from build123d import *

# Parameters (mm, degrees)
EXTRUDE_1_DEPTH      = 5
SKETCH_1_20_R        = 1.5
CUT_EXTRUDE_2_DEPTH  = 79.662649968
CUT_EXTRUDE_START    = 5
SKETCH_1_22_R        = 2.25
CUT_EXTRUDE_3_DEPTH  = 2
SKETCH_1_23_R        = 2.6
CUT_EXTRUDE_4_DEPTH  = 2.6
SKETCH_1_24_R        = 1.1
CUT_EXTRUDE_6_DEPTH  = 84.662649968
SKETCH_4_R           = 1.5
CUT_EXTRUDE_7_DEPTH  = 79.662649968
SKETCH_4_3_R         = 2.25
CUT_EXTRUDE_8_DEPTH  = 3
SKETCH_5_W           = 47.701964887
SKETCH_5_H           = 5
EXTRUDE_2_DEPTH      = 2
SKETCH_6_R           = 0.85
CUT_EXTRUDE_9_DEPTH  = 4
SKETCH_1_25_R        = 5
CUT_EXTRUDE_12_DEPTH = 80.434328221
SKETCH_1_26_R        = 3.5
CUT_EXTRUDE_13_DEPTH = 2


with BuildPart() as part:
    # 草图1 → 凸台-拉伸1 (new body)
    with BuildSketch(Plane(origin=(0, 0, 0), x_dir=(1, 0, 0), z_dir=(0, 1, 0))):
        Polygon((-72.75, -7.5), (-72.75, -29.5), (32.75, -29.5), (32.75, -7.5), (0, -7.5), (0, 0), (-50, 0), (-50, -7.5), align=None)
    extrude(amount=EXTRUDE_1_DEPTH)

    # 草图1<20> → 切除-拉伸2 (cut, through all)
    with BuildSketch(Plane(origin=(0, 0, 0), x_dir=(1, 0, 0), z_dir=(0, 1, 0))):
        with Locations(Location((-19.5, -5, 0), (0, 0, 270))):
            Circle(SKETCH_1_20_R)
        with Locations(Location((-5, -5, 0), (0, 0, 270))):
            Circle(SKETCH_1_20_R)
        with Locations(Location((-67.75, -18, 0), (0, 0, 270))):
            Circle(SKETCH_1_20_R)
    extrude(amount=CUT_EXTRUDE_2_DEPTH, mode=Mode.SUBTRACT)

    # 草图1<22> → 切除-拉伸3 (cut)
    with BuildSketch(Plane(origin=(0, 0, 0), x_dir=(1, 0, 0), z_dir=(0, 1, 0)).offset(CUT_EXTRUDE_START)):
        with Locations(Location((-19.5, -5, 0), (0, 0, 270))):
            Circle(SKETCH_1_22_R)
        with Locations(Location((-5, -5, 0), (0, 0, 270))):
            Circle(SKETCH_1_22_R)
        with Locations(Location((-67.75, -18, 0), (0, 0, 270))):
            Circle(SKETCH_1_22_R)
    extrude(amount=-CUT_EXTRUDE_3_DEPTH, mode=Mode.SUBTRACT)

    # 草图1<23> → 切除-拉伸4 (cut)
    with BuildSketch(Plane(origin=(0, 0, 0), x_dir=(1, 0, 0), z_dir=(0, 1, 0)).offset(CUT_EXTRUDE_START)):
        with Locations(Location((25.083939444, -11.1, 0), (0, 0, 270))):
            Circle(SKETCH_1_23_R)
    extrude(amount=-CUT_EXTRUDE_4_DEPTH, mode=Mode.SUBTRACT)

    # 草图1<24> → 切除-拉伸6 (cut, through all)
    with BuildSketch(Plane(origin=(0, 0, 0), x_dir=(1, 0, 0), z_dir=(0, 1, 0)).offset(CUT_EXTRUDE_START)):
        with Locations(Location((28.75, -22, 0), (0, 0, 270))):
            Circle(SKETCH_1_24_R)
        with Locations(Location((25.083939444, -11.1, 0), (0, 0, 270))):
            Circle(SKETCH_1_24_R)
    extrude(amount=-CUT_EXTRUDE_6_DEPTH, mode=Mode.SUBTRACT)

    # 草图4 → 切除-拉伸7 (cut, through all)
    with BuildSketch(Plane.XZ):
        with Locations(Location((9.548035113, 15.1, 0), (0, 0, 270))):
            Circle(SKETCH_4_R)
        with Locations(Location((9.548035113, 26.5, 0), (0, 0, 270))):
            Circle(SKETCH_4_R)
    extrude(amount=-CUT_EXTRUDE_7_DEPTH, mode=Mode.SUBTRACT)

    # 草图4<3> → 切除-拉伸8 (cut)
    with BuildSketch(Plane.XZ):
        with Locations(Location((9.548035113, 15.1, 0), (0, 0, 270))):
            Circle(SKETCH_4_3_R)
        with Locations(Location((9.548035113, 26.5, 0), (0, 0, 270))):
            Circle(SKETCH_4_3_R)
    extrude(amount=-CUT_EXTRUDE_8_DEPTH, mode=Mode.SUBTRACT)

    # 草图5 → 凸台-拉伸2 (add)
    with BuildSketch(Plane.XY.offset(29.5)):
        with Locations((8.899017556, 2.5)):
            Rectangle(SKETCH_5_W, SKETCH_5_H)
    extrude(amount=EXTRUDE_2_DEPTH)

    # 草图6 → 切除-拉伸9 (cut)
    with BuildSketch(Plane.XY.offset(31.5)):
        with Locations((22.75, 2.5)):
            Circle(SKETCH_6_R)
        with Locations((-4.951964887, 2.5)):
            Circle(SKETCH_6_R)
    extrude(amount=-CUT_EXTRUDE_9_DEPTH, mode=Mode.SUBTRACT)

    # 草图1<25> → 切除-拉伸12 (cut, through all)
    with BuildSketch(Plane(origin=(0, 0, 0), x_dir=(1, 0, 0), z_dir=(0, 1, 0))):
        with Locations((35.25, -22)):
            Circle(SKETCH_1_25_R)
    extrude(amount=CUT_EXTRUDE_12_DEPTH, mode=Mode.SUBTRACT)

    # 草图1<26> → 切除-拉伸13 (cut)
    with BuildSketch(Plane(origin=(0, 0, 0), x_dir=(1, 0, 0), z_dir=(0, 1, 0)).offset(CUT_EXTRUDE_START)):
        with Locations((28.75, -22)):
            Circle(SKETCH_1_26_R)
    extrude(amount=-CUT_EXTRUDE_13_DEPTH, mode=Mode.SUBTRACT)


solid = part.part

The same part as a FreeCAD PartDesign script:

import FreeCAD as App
import Part
import Sketcher


def add_polygon(sketch, points):
    """Adds a closed chain of lines whose ends are joined by coincident constraints."""
    first, n = sketch.GeometryCount, len(points)
    for a, b in zip(points, points[1:] + points[:1]):
        sketch.addGeometry(Part.LineSegment(App.Vector(*a, 0), App.Vector(*b, 0)), False)
    for i in range(n):
        sketch.addConstraint(Sketcher.Constraint("Coincident", first + i, 2, first + (i + 1) % n, 1))

doc = App.newDocument("Part")
body = doc.addObject("PartDesign::Body", "Body")

# Sketch on XZ plane
sketch1 = body.newObject("Sketcher::SketchObject", "Sketch")
sketch1.AttachmentSupport = (doc.getObject("XZ_Plane"), [""])
sketch1.MapMode = "FlatFace"
add_polygon(sketch1, [(-73, 8), (-73, 30), (33, 30), (33, 8), (0, 8), (0, 0), (-50, 0), (-50, 8)])  # lines 0-7
sketch1.addConstraint(Sketcher.Constraint("Vertical", 0))
sketch1.addConstraint(Sketcher.Constraint("Horizontal", 1))
sketch1.addConstraint(Sketcher.Constraint("Vertical", 2))
sketch1.addConstraint(Sketcher.Constraint("Horizontal", 3))
sketch1.addConstraint(Sketcher.Constraint("Vertical", 4))
sketch1.addConstraint(Sketcher.Constraint("Horizontal", 5))
sketch1.addConstraint(Sketcher.Constraint("Vertical", 6))
sketch1.addConstraint(Sketcher.Constraint("Horizontal", 7))
sketch1.addConstraint(Sketcher.Constraint("Coincident", 4, 2, -1, 1))
sketch1.addConstraint(Sketcher.Constraint("Horizontal", 3, 2, 6, 2))
sketch1.addConstraint(Sketcher.Constraint("DistanceX", 5, 2, 5, 1, 50.0))
sketch1.addConstraint(Sketcher.Constraint("DistanceY", 0, 1, 0, 2, 22.0))
sketch1.addConstraint(Sketcher.Constraint("DistanceX", 1, 1, 1, 2, 105.5))
sketch1.addConstraint(Sketcher.Constraint("DistanceY", 4, 2, 4, 1, 7.5))
sketch1.addConstraint(Sketcher.Constraint("DistanceX", 3, 2, 3, 1, 32.75))
pad1 = body.newObject("PartDesign::Pad", "Pad")
pad1.Profile = sketch1
pad1.Length = 5
pad1.Reversed = True

# Sketch on XZ plane
sketch2 = body.newObject("Sketcher::SketchObject", "Sketch001")
sketch2.AttachmentSupport = (doc.getObject("XZ_Plane"), [""])
sketch2.MapMode = "FlatFace"
sketch2.addGeometry(Part.Circle(App.Vector(-19.5, 5, 0), App.Vector(0, 0, 1), 1.5), False)
sketch2.addGeometry(Part.Circle(App.Vector(-5, 5, 0), App.Vector(0, 0, 1), 1.5), False)
sketch2.addGeometry(Part.Circle(App.Vector(-67.8, 18, 0), App.Vector(0, 0, 1), 1.5), False)
sketch2.addConstraint(Sketcher.Constraint("Equal", 0, 1))
sketch2.addConstraint(Sketcher.Constraint("Equal", 1, 2))
sketch2.addConstraint(Sketcher.Constraint("Horizontal", 0, 3, 1, 3))
sketch2.addConstraint(Sketcher.Constraint("Diameter", 0, 3.0))
sketch2.addConstraint(Sketcher.Constraint("DistanceY", -1, 1, 0, 3, 5.0))
sketch2.addConstraint(Sketcher.Constraint("DistanceX", 1, 3, -1, 1, 5.0))
sketch2.addConstraint(Sketcher.Constraint("DistanceY", -1, 1, 2, 3, 18.0))
sketch2.addConstraint(Sketcher.Constraint("DistanceX", 0, 3, -1, 1, 19.5))
sketch2.addConstraint(Sketcher.Constraint("DistanceX", 2, 3, -1, 1, 67.75))
pocket1 = body.newObject("PartDesign::Pocket", "Pocket")
pocket1.Profile = sketch2
pocket1.Type = "ThroughAll"

# Sketch on XZ plane
sketch3 = body.newObject("Sketcher::SketchObject", "Sketch002")
sketch3.AttachmentSupport = (doc.getObject("XZ_Plane"), [""])
sketch3.MapMode = "FlatFace"
sketch3.AttachmentOffset = App.Placement(App.Vector(0, 0, -5), App.Rotation())
sketch3.addGeometry(Part.Circle(App.Vector(-19.5, 5, 0), App.Vector(0, 0, 1), 2.2), False)
sketch3.addGeometry(Part.Circle(App.Vector(-5, 5, 0), App.Vector(0, 0, 1), 2.2), False)
sketch3.addGeometry(Part.Circle(App.Vector(-67.8, 18, 0), App.Vector(0, 0, 1), 2.2), False)
sketch3.addConstraint(Sketcher.Constraint("Equal", 0, 1))
sketch3.addConstraint(Sketcher.Constraint("Equal", 1, 2))
sketch3.addConstraint(Sketcher.Constraint("Horizontal", 0, 3, 1, 3))
sketch3.addConstraint(Sketcher.Constraint("Diameter", 0, 4.5))
sketch3.addConstraint(Sketcher.Constraint("DistanceY", -1, 1, 0, 3, 5.0))
sketch3.addConstraint(Sketcher.Constraint("DistanceX", 1, 3, -1, 1, 5.0))
sketch3.addConstraint(Sketcher.Constraint("DistanceY", -1, 1, 2, 3, 18.0))
sketch3.addConstraint(Sketcher.Constraint("DistanceX", 0, 3, -1, 1, 19.5))
sketch3.addConstraint(Sketcher.Constraint("DistanceX", 2, 3, -1, 1, 67.75))
pocket2 = body.newObject("PartDesign::Pocket", "Pocket001")
pocket2.Profile = sketch3
pocket2.Length = 2
pocket2.Reversed = True

# Sketch on XZ plane
sketch4 = body.newObject("Sketcher::SketchObject", "Sketch003")
sketch4.AttachmentSupport = (doc.getObject("XZ_Plane"), [""])
sketch4.MapMode = "FlatFace"
sketch4.AttachmentOffset = App.Placement(App.Vector(0, 0, -5), App.Rotation())
sketch4.addGeometry(Part.Circle(App.Vector(25.1, 11.1, 0), App.Vector(0, 0, 1), 2.6), False)
sketch4.addConstraint(Sketcher.Constraint("Diameter", 0, 5.2))
sketch4.addConstraint(Sketcher.Constraint("DistanceY", -1, 1, 0, 3, 11.1))
sketch4.addConstraint(Sketcher.Constraint("DistanceX", -1, 1, 0, 3, 25.083939))
pocket3 = body.newObject("PartDesign::Pocket", "Pocket002")
pocket3.Profile = sketch4
pocket3.Length = 2.6
pocket3.Reversed = True

# Sketch on XZ plane
sketch5 = body.newObject("Sketcher::SketchObject", "Sketch004")
sketch5.AttachmentSupport = (doc.getObject("XZ_Plane"), [""])
sketch5.MapMode = "FlatFace"
sketch5.AttachmentOffset = App.Placement(App.Vector(0, 0, -5), App.Rotation())
sketch5.addGeometry(Part.Circle(App.Vector(28.8, 22, 0), App.Vector(0, 0, 1), 1.1), False)
sketch5.addGeometry(Part.Circle(App.Vector(25.1, 11.1, 0), App.Vector(0, 0, 1), 1.1), False)
sketch5.addConstraint(Sketcher.Constraint("Equal", 0, 1))
sketch5.addConstraint(Sketcher.Constraint("Diameter", 0, 2.2))
sketch5.addConstraint(Sketcher.Constraint("DistanceY", -1, 1, 0, 3, 22.0))
sketch5.addConstraint(Sketcher.Constraint("DistanceY", -1, 1, 1, 3, 11.1))
sketch5.addConstraint(Sketcher.Constraint("DistanceX", -1, 1, 0, 3, 28.75))
sketch5.addConstraint(Sketcher.Constraint("DistanceX", -1, 1, 1, 3, 25.083939))
pocket4 = body.newObject("PartDesign::Pocket", "Pocket003")
pocket4.Profile = sketch5
pocket4.Type = "ThroughAll"
pocket4.Reversed = True

# Sketch on XZ plane
sketch6 = body.newObject("Sketcher::SketchObject", "Sketch005")
sketch6.AttachmentSupport = (doc.getObject("XZ_Plane"), [""])
sketch6.MapMode = "FlatFace"
sketch6.addGeometry(Part.Circle(App.Vector(9.5, 15.1, 0), App.Vector(0, 0, 1), 1.5), False)
sketch6.addGeometry(Part.Circle(App.Vector(9.5, 26.5, 0), App.Vector(0, 0, 1), 1.5), False)
sketch6.addConstraint(Sketcher.Constraint("Equal", 0, 1))
sketch6.addConstraint(Sketcher.Constraint("Vertical", 0, 3, 1, 3))
sketch6.addConstraint(Sketcher.Constraint("Diameter", 0, 3.0))
sketch6.addConstraint(Sketcher.Constraint("DistanceY", -1, 1, 0, 3, 15.1))
sketch6.addConstraint(Sketcher.Constraint("DistanceY", -1, 1, 1, 3, 26.5))
sketch6.addConstraint(Sketcher.Constraint("DistanceX", -1, 1, 0, 3, 9.548035))
pocket5 = body.newObject("PartDesign::Pocket", "Pocket004")
pocket5.Profile = sketch6
pocket5.Type = "ThroughAll"

# Sketch on XZ plane
sketch7 = body.newObject("Sketcher::SketchObject", "Sketch006")
sketch7.AttachmentSupport = (doc.getObject("XZ_Plane"), [""])
sketch7.MapMode = "FlatFace"
sketch7.addGeometry(Part.Circle(App.Vector(9.5, 15.1, 0), App.Vector(0, 0, 1), 2.2), False)
sketch7.addGeometry(Part.Circle(App.Vector(9.5, 26.5, 0), App.Vector(0, 0, 1), 2.2), False)
sketch7.addConstraint(Sketcher.Constraint("Equal", 0, 1))
sketch7.addConstraint(Sketcher.Constraint("Vertical", 0, 3, 1, 3))
sketch7.addConstraint(Sketcher.Constraint("Diameter", 0, 4.5))
sketch7.addConstraint(Sketcher.Constraint("DistanceY", -1, 1, 0, 3, 15.1))
sketch7.addConstraint(Sketcher.Constraint("DistanceY", -1, 1, 1, 3, 26.5))
sketch7.addConstraint(Sketcher.Constraint("DistanceX", -1, 1, 0, 3, 9.548035))
pocket6 = body.newObject("PartDesign::Pocket", "Pocket005")
pocket6.Profile = sketch7
pocket6.Length = 3

# Sketch on XY plane
sketch8 = body.newObject("Sketcher::SketchObject", "Sketch007")
sketch8.AttachmentSupport = (doc.getObject("XY_Plane"), [""])
sketch8.MapMode = "FlatFace"
sketch8.AttachmentOffset = App.Placement(App.Vector(0, 0, 29.5), App.Rotation())
add_polygon(sketch8, [(-15, 5), (-15, 0), (33, 0), (33, 5)])  # lines 0-3
sketch8.addConstraint(Sketcher.Constraint("Vertical", 0))
sketch8.addConstraint(Sketcher.Constraint("Horizontal", 1))
sketch8.addConstraint(Sketcher.Constraint("Vertical", 2))
sketch8.addConstraint(Sketcher.Constraint("Horizontal", 3))
sketch8.addConstraint(Sketcher.Constraint("PointOnObject", 0, 2, -1))
sketch8.addConstraint(Sketcher.Constraint("DistanceY", 0, 2, 0, 1, 5.0))
sketch8.addConstraint(Sketcher.Constraint("DistanceX", -1, 1, 1, 2, 32.75))
sketch8.addConstraint(Sketcher.Constraint("DistanceX", 1, 1, 1, 2, 47.701965))
pad2 = body.newObject("PartDesign::Pad", "Pad001")
pad2.Profile = sketch8
pad2.Length = 2

# Sketch on XY plane
sketch9 = body.newObject("Sketcher::SketchObject", "Sketch008")
sketch9.AttachmentSupport = (doc.getObject("XY_Plane"), [""])
sketch9.MapMode = "FlatFace"
sketch9.AttachmentOffset = App.Placement(App.Vector(0, 0, 31.5), App.Rotation())
sketch9.addGeometry(Part.Circle(App.Vector(22.8, 2.5, 0), App.Vector(0, 0, 1), 0.8), False)
sketch9.addGeometry(Part.Circle(App.Vector(-5, 2.5, 0), App.Vector(0, 0, 1), 0.8), False)
sketch9.addConstraint(Sketcher.Constraint("Equal", 0, 1))
sketch9.addConstraint(Sketcher.Constraint("Horizontal", 0, 3, 1, 3))
sketch9.addConstraint(Sketcher.Constraint("Diameter", 0, 1.7))
sketch9.addConstraint(Sketcher.Constraint("DistanceY", -1, 1, 0, 3, 2.5))
sketch9.addConstraint(Sketcher.Constraint("DistanceX", -1, 1, 0, 3, 22.75))
sketch9.addConstraint(Sketcher.Constraint("DistanceX", 1, 3, -1, 1, 4.951965))
pocket7 = body.newObject("PartDesign::Pocket", "Pocket006")
pocket7.Profile = sketch9
pocket7.Length = 4

# Sketch on XZ plane
sketch10 = body.newObject("Sketcher::SketchObject", "Sketch009")
sketch10.AttachmentSupport = (doc.getObject("XZ_Plane"), [""])
sketch10.MapMode = "FlatFace"
sketch10.addGeometry(Part.Circle(App.Vector(35, 22, 0), App.Vector(0, 0, 1), 5), False)
sketch10.addConstraint(Sketcher.Constraint("Diameter", 0, 10.0))
sketch10.addConstraint(Sketcher.Constraint("DistanceY", -1, 1, 0, 3, 22.0))
sketch10.addConstraint(Sketcher.Constraint("DistanceX", -1, 1, 0, 3, 35.25))
pocket8 = body.newObject("PartDesign::Pocket", "Pocket007")
pocket8.Profile = sketch10
pocket8.Type = "ThroughAll"

# Sketch on XZ plane
sketch11 = body.newObject("Sketcher::SketchObject", "Sketch010")
sketch11.AttachmentSupport = (doc.getObject("XZ_Plane"), [""])
sketch11.MapMode = "FlatFace"
sketch11.AttachmentOffset = App.Placement(App.Vector(0, 0, -5), App.Rotation())
sketch11.addGeometry(Part.Circle(App.Vector(28.8, 22, 0), App.Vector(0, 0, 1), 3.5), False)
sketch11.addConstraint(Sketcher.Constraint("Diameter", 0, 7.0))
sketch11.addConstraint(Sketcher.Constraint("DistanceY", -1, 1, 0, 3, 22.0))
sketch11.addConstraint(Sketcher.Constraint("DistanceX", -1, 1, 0, 3, 28.75))
pocket9 = body.newObject("PartDesign::Pocket", "Pocket008")
pocket9.Profile = sketch11
pocket9.Length = 2
pocket9.Reversed = True

doc.recompute()
